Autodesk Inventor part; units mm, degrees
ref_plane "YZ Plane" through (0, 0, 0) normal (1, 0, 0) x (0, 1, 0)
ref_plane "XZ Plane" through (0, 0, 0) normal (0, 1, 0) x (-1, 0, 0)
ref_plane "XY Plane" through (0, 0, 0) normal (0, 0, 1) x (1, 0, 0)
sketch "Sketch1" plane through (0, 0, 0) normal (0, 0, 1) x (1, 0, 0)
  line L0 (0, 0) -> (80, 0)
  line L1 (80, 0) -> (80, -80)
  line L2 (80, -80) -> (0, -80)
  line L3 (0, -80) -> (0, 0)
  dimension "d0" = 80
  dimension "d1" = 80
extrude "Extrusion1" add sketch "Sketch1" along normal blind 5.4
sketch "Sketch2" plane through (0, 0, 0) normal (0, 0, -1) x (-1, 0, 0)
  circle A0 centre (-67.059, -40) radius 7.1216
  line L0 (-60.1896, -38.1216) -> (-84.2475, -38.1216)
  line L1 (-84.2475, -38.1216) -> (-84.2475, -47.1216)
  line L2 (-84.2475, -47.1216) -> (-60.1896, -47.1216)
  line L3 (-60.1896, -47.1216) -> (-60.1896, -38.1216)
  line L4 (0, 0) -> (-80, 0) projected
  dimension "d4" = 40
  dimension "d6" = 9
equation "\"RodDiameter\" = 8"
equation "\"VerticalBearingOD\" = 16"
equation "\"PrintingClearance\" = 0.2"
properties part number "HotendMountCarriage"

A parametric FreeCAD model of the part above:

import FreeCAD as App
import Part
import Sketcher
from FreeCAD import Vector
Q = App.Units.Quantity

doc = App.newDocument("Part")
body = doc.addObject("PartDesign::Body", "Body")

# Sketch on XY plane
sketch1 = doc.addObject("Sketcher::SketchObject", "Sketch")
body.addObject(sketch1)
sketch1.AttachmentSupport = (doc.XY_Plane, [""])
sketch1.MapMode = "FlatFace"
sketch1.addGeometry([
    Part.LineSegment(Vector(80, 0, 0), Vector(0, 0, 0)),
    Part.LineSegment(Vector(0, 0, 0), Vector(0, -80, 0)),
    Part.LineSegment(Vector(0, -80, 0), Vector(80, -80, 0)),
    Part.LineSegment(Vector(80, -80, 0), Vector(80, 0, 0)),
], False)
sketch1.addConstraint([
    Sketcher.Constraint("Coincident", 0, 2, 1, 1),
    Sketcher.Constraint("Coincident", 1, 2, 2, 1),
    Sketcher.Constraint("Coincident", 2, 2, 3, 1),
    Sketcher.Constraint("Coincident", 3, 2, 0, 1),
    Sketcher.Constraint("Horizontal", 0),
    Sketcher.Constraint("Vertical", 1),
    Sketcher.Constraint("Horizontal", 2),
    Sketcher.Constraint("Vertical", 3),
    Sketcher.Constraint("Coincident", 0, 2, -1, 1),
    Sketcher.Constraint("Equal", 2, 1),
    Sketcher.Constraint("DistanceX", 0, 2, 0, 1, Q("80 mm")),
])
pad1 = doc.addObject("PartDesign::Pad", "Pad")
body.addObject(pad1)
pad1.Profile = sketch1
pad1.Length = 5.4

doc.recompute()
